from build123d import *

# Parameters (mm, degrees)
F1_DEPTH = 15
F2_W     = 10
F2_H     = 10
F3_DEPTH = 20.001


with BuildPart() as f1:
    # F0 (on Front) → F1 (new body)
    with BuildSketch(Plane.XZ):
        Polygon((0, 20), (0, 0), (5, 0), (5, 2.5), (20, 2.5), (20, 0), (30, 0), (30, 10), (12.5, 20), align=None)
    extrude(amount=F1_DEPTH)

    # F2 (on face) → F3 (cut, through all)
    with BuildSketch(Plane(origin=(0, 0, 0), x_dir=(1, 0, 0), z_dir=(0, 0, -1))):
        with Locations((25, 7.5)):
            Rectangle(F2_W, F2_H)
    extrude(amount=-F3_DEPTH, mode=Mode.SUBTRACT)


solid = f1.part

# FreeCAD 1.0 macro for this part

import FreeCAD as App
import Part
import Sketcher
from FreeCAD import Vector

doc = App.newDocument("Part")
params = doc.addObject("Spreadsheet::Sheet", "Params")
for row, (alias, value) in enumerate([
    ("sketch1_width", "5 mm"),
    ("sketch1_width2", "15 mm"),
    ("sketch1_width3", "10 mm"),
    ("sketch1_height", "20 mm"),
    ("sketch1_width4", "12.5 mm"),
    ("pad1_length", "15 mm"),
    ("sketch2_width", "10 mm"),
], start=1):
    params.set(f"A{row}", alias)
    params.set(f"B{row}", "=" + value)
    params.setAlias(f"B{row}", alias)

body = doc.addObject("PartDesign::Body", "Body")

sketch1 = body.newObject("Sketcher::SketchObject", "Sketch")
sketch1.AttachmentSupport = (doc.getObject("XZ_Plane"), [""])
sketch1.MapMode = "FlatFace"
sketch1.addGeometry(Part.LineSegment(Vector(0, 20, 0), Vector(0, 0, 0)), False)
sketch1.addGeometry(Part.LineSegment(Vector(0, 0, 0), Vector(5, 0, 0)), False)
sketch1.addGeometry(Part.LineSegment(Vector(5, 0, 0), Vector(5, 2.5, 0)), False)
sketch1.addGeometry(Part.LineSegment(Vector(5, 2.5, 0), Vector(20, 2.5, 0)), False)
sketch1.addGeometry(Part.LineSegment(Vector(20, 2.5, 0), Vector(20, 0, 0)), False)
sketch1.addGeometry(Part.LineSegment(Vector(20, 0, 0), Vector(30, 0, 0)), False)
sketch1.addGeometry(Part.LineSegment(Vector(30, 0, 0), Vector(30, 10, 0)), False)
sketch1.addGeometry(Part.LineSegment(Vector(30, 10, 0), Vector(12.5, 20, 0)), False)
sketch1.addGeometry(Part.LineSegment(Vector(12.5, 20, 0), Vector(0, 20, 0)), False)
sketch1.addConstraint(Sketcher.Constraint("Coincident", 0, 2, 1, 1))
sketch1.addConstraint(Sketcher.Constraint("Coincident", 1, 2, 2, 1))
sketch1.addConstraint(Sketcher.Constraint("Coincident", 2, 2, 3, 1))
sketch1.addConstraint(Sketcher.Constraint("Coincident", 3, 2, 4, 1))
sketch1.addConstraint(Sketcher.Constraint("Coincident", 4, 2, 5, 1))
sketch1.addConstraint(Sketcher.Constraint("Coincident", 5, 2, 6, 1))
sketch1.addConstraint(Sketcher.Constraint("Coincident", 6, 2, 7, 1))
sketch1.addConstraint(Sketcher.Constraint("Coincident", 7, 2, 8, 1))
sketch1.addConstraint(Sketcher.Constraint("Coincident", 8, 2, 0, 1))
sketch1.addConstraint(Sketcher.Constraint("Vertical", 0))
sketch1.addConstraint(Sketcher.Constraint("Horizontal", 1))
sketch1.addConstraint(Sketcher.Constraint("Vertical", 2))
sketch1.addConstraint(Sketcher.Constraint("Horizontal", 3))
sketch1.addConstraint(Sketcher.Constraint("Vertical", 4))
sketch1.addConstraint(Sketcher.Constraint("Horizontal", 5))
sketch1.addConstraint(Sketcher.Constraint("Vertical", 6))
sketch1.addConstraint(Sketcher.Constraint("Horizontal", 8))
sketch1.addConstraint(Sketcher.Constraint("Coincident", 0, 2, -1, 1))
sketch1.addConstraint(Sketcher.Constraint("PointOnObject", 4, 2, -1))
sketch1.addConstraint(Sketcher.Constraint("Equal", 5, 6))
sketch1.addConstraint(Sketcher.Constraint("DistanceX", 1, 1, 1, 2, 5.0))
sketch1.addConstraint(Sketcher.Constraint("DistanceX", 3, 1, 3, 2, 15.0))
sketch1.addConstraint(Sketcher.Constraint("DistanceX", 5, 1, 5, 2, 10.0))
sketch1.addConstraint(Sketcher.Constraint("DistanceY", 0, 2, 0, 1, 20.0))
sketch1.addConstraint(Sketcher.Constraint("DistanceX", 8, 2, 8, 1, 12.5))
sketch1.addConstraint(Sketcher.Constraint("DistanceY", 2, 1, 2, 2, 2.5))
sketch1.setExpression("Constraints[20]", "Params.sketch1_width")
sketch1.setExpression("Constraints[21]", "Params.sketch1_width2")
sketch1.setExpression("Constraints[22]", "Params.sketch1_width3")
sketch1.setExpression("Constraints[23]", "Params.sketch1_height")
sketch1.setExpression("Constraints[24]", "Params.sketch1_width4")
pad1 = body.newObject("PartDesign::Pad", "Pad")
pad1.Profile = sketch1
pad1.setExpression("Length", "Params.pad1_length")

sketch2 = body.newObject("Sketcher::SketchObject", "Sketch001")
sketch2.AttachmentSupport = (doc.getObject("XY_Plane"), [""])
sketch2.MapMode = "FlatFace"
sketch2.addGeometry(Part.LineSegment(Vector(20, -12.5, 0), Vector(20, -2.5, 0)), False)
sketch2.addGeometry(Part.LineSegment(Vector(20, -2.5, 0), Vector(30, -2.5, 0)), False)
sketch2.addGeometry(Part.LineSegment(Vector(30, -2.5, 0), Vector(30, -12.5, 0)), False)
sketch2.addGeometry(Part.LineSegment(Vector(30, -12.5, 0), Vector(20, -12.5, 0)), False)
sketch2.addConstraint(Sketcher.Constraint("Coincident", 0, 2, 1, 1))
sketch2.addConstraint(Sketcher.Constraint("Coincident", 1, 2, 2, 1))
sketch2.addConstraint(Sketcher.Constraint("Coincident", 2, 2, 3, 1))
sketch2.addConstraint(Sketcher.Constraint("Coincident", 3, 2, 0, 1))
sketch2.addConstraint(Sketcher.Constraint("Vertical", 0))
sketch2.addConstraint(Sketcher.Constraint("Horizontal", 1))
sketch2.addConstraint(Sketcher.Constraint("Vertical", 2))
sketch2.addConstraint(Sketcher.Constraint("Horizontal", 3))
sketch2.addConstraint(Sketcher.Constraint("Equal", 3, 0))
sketch2.addConstraint(Sketcher.Constraint("DistanceX", 1, 1, 1, 2, 10.0))
sketch2.addConstraint(Sketcher.Constraint("DistanceX", -1, 1, 0, 2, 20.0))
sketch2.addConstraint(Sketcher.Constraint("DistanceY", 0, 2, -1, 1, 2.5))
sketch2.setExpression("Constraints[9]", "Params.sketch2_width")
pocket1 = body.newObject("PartDesign::Pocket", "Pocket")
pocket1.Profile = sketch2
pocket1.Type = "ThroughAll"
pocket1.Reversed = True

doc.recompute()
